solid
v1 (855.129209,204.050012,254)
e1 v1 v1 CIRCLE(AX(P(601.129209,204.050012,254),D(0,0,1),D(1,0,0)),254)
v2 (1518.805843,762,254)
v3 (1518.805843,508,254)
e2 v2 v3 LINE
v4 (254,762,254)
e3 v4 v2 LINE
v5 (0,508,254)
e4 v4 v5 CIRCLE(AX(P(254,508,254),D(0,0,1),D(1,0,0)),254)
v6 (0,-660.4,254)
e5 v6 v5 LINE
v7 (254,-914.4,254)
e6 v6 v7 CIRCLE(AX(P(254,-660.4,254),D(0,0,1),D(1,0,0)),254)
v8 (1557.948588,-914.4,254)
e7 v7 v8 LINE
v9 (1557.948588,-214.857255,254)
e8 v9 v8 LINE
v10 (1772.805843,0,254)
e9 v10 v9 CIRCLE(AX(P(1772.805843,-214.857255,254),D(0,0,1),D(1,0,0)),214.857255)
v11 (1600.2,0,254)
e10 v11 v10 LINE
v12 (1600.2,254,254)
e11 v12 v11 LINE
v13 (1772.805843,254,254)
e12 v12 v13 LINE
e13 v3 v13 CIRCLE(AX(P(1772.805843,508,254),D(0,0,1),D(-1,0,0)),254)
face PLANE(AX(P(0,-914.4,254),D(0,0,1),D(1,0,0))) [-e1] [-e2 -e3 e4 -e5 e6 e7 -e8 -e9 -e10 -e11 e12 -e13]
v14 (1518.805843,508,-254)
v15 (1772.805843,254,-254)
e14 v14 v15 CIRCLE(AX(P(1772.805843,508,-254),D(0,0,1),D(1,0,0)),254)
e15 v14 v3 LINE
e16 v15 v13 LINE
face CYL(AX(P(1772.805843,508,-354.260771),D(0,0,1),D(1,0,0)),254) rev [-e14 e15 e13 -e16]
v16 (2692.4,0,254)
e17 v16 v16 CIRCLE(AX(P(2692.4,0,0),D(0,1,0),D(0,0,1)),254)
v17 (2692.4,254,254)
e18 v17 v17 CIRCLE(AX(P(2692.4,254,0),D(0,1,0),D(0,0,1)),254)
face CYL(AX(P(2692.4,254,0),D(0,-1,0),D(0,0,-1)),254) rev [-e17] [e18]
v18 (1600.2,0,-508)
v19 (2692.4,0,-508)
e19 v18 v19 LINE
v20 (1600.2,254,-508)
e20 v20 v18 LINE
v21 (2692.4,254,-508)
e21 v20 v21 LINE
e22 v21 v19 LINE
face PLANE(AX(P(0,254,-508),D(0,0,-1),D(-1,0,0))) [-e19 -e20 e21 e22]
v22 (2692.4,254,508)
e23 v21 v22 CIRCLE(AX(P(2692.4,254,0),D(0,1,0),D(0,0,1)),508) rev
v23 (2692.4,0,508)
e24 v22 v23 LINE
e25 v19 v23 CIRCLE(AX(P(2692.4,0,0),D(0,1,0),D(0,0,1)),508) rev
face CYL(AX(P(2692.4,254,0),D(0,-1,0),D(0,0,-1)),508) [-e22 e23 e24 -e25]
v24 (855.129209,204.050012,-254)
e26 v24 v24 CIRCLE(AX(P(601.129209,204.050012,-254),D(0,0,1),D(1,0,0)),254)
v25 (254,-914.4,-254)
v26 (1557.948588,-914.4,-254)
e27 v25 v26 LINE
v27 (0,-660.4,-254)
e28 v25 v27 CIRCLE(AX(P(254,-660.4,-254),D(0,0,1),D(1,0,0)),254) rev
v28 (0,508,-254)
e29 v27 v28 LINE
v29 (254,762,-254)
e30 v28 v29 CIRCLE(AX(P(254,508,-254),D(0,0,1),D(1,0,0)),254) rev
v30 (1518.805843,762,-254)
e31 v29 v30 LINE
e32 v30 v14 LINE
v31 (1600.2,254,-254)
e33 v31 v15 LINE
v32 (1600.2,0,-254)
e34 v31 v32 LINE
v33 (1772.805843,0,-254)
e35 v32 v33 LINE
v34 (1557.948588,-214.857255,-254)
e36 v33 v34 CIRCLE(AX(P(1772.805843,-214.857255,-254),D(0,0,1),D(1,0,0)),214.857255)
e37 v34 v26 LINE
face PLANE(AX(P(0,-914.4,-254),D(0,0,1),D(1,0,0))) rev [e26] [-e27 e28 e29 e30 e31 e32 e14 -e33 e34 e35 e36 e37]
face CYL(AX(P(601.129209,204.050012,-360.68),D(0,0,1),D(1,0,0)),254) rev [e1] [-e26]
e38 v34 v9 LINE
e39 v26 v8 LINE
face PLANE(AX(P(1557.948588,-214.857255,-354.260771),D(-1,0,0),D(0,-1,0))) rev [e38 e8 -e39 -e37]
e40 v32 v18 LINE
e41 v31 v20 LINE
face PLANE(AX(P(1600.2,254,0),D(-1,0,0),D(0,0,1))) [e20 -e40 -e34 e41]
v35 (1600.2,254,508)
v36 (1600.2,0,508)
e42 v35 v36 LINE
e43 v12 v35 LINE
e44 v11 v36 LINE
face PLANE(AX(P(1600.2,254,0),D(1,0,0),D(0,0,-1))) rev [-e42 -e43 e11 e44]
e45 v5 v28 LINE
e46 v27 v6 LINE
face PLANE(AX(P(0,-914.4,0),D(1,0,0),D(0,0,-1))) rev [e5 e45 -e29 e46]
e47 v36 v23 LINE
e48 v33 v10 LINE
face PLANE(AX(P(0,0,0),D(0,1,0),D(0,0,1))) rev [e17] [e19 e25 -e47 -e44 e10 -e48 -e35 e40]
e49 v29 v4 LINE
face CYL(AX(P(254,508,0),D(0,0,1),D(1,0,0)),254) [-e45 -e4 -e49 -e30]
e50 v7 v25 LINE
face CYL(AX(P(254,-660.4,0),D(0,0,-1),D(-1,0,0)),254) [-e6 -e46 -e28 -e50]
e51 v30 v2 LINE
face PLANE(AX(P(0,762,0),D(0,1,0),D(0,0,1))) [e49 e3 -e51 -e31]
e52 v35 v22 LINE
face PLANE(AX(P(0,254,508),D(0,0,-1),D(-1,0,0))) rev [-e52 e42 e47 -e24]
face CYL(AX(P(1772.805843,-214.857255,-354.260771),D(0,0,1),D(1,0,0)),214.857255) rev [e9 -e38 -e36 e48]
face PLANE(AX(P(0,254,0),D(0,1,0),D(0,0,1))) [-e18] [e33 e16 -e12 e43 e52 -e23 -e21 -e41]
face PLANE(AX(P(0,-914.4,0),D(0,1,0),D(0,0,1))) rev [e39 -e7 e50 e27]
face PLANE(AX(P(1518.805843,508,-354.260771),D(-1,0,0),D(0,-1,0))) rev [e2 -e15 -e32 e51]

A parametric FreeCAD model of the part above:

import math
import FreeCAD as App
import Part
import Sketcher
Q = App.Units.Quantity


def edges_at(feature, points):
    """Names of the edges that pass closest to the given points."""
    edges = feature.Shape.Edges
    near = lambda p: min(range(len(edges)), key=lambda i: edges[i].distToShape(Part.Vertex(*p))[0])
    return sorted({f"Edge{near(p) + 1}" for p in points})


def add_polygon(sketch, points):
    """Adds a closed chain of lines whose ends are joined by coincident constraints."""
    first, n = sketch.GeometryCount, len(points)
    for a, b in zip(points, points[1:] + points[:1]):
        sketch.addGeometry(Part.LineSegment(App.Vector(*a, 0), App.Vector(*b, 0)), False)
    for i in range(n):
        sketch.addConstraint(Sketcher.Constraint("Coincident", first + i, 2, first + (i + 1) % n, 1))

doc = App.newDocument("Part")
body = doc.addObject("PartDesign::Body", "Body")

# Sketch on XZ plane
sketch1 = doc.addObject("Sketcher::SketchObject", "Sketch")
body.addObject(sketch1)
sketch1.AttachmentSupport = (doc.XZ_Plane, [""])
sketch1.MapMode = "FlatFace"
add_polygon(sketch1, [(0, -254), (0, 254), (1773, 254), (1773, -254)])  # lines 0-3
sketch1.addConstraint([
    Sketcher.Constraint("Vertical", 0),
    Sketcher.Constraint("Horizontal", 1),
    Sketcher.Constraint("Vertical", 2),
    Sketcher.Constraint("Horizontal", 3),
    Sketcher.Constraint("Symmetric", 0, 2, 3, 2, -1, 1),
    Sketcher.Constraint("DistanceY", 0, 1, 0, 2, Q("20 in")),
    Sketcher.Constraint("DistanceX", 1, 1, 1, 2, Q("1772.805843 mm")),
])
pad1 = doc.addObject("PartDesign::Pad", "Pad")
body.addObject(pad1)
pad1.Profile = sketch1
pad1.Type = "TwoLengths"
pad1.Length = Q("20 in")
pad1.Length2 = Q("36 in")
pad1.Reversed = True

# Sketch on XZ plane
sketch2 = doc.addObject("Sketcher::SketchObject", "Sketch001")
body.addObject(sketch2)
sketch2.AttachmentSupport = (doc.XZ_Plane, [""])
sketch2.MapMode = "FlatFace"
sketch2.addGeometry([
    Part.LineSegment(App.Vector(1773, 254, 0), App.Vector(1600, 254, 0)),  # 0
    Part.LineSegment(App.Vector(1600, 254, 0), App.Vector(1600, 508, 0)),  # 1
    Part.LineSegment(App.Vector(1600, 508, 0), App.Vector(2692, 508, 0)),  # 2
    Part.ArcOfCircle(Part.Circle(App.Vector(2692, 0, 0), App.Vector(0, 0, 1), 508), math.radians(-90), math.radians(90)),  # 3
    Part.LineSegment(App.Vector(2692, -508, 0), App.Vector(1600, -508, 0)),  # 4
    Part.LineSegment(App.Vector(1600, -508, 0), App.Vector(1600, -254, 0)),  # 5
    Part.LineSegment(App.Vector(1600, -254, 0), App.Vector(1773, -254, 0)),  # 6
    Part.LineSegment(App.Vector(1773, -254, 0), App.Vector(1773, 254, 0)),  # 7
    Part.Circle(App.Vector(2692, 0, 0), App.Vector(0, 0, 1), 254),  # 8
], False)
sketch2.addConstraint([
    Sketcher.Constraint("Coincident", 0, 2, 1, 1),
    Sketcher.Constraint("Coincident", 1, 2, 2, 1),
    Sketcher.Constraint("Tangent", 2, 2, 3, 2),
    Sketcher.Constraint("Tangent", 3, 1, 4, 1),
    Sketcher.Constraint("Coincident", 4, 2, 5, 1),
    Sketcher.Constraint("Coincident", 5, 2, 6, 1),
    Sketcher.Constraint("Coincident", 6, 2, 7, 1),
    Sketcher.Constraint("Coincident", 7, 2, 0, 1),
    Sketcher.Constraint("Horizontal", 0),
    Sketcher.Constraint("Vertical", 1),
    Sketcher.Constraint("Horizontal", 2),
    Sketcher.Constraint("Horizontal", 4),
    Sketcher.Constraint("Vertical", 5),
    Sketcher.Constraint("Horizontal", 6),
    Sketcher.Constraint("Vertical", 7),
    Sketcher.Constraint("Coincident", 8, 3, 3, 3),
    Sketcher.Constraint("Symmetric", 1, 2, 4, 2, -1),
    Sketcher.Constraint("Equal", 1, 5),
    Sketcher.Constraint("Diameter", 8, Q("20 in")),
    Sketcher.Constraint("Radius", 3, Q("20 in")),
    Sketcher.Constraint("DistanceX", 2, 1, 2, 2, Q("43 in")),
    Sketcher.Constraint("DistanceY", 1, 1, 1, 2, Q("10 in")),
    Sketcher.Constraint("DistanceX", -1, 1, 3, 3, Q("106 in")),
    Sketcher.Constraint("DistanceX", 0, 2, 0, 1, Q("172.605843 mm")),
])
pad2 = doc.addObject("PartDesign::Pad", "Pad001")
body.addObject(pad2)
pad2.Profile = sketch2
pad2.Length = Q("10 in")
pad2.Reversed = True

# Sketch on XZ plane
sketch3 = doc.addObject("Sketcher::SketchObject", "Sketch002")
body.addObject(sketch3)
sketch3.AttachmentSupport = (doc.XZ_Plane, [""])
sketch3.MapMode = "FlatFace"
add_polygon(sketch3, [(0, -254), (0, 254), (1773, 254), (1773, -254)])  # lines 0-3
sketch3.addConstraint([
    Sketcher.Constraint("Vertical", 0),
    Sketcher.Constraint("Horizontal", 1),
    Sketcher.Constraint("Vertical", 2),
    Sketcher.Constraint("Horizontal", 3),
    Sketcher.Constraint("Symmetric", 0, 2, 3, 2, -1, 1),
    Sketcher.Constraint("DistanceY", 0, 1, 0, 2, Q("20 in")),
    Sketcher.Constraint("DistanceX", 1, 1, 1, 2, Q("1772.805843 mm")),
])
pad3 = doc.addObject("PartDesign::Pad", "Pad002")
body.addObject(pad3)
pad3.Profile = sketch3
pad3.Length = Q("30 in")
pad3.Reversed = True

# Sketch on XY plane
sketch4 = doc.addObject("Sketcher::SketchObject", "Sketch003")
body.addObject(sketch4)
sketch4.AttachmentSupport = (doc.XY_Plane, [""])
sketch4.MapMode = "FlatFace"
sketch4.AttachmentOffset = App.Placement(App.Vector(0, 0, 10 * 25.4), App.Rotation())
sketch4.addGeometry([
    Part.LineSegment(App.Vector(1519, 762, 0), App.Vector(1519, 508, 0)),  # 0
    Part.ArcOfCircle(Part.Circle(App.Vector(1773, 508, 0), App.Vector(0, 0, 1), 254), math.radians(180), math.radians(270)),  # 1
    Part.LineSegment(App.Vector(1773, 254, 0), App.Vector(1773, 762, 0)),  # 2
    Part.LineSegment(App.Vector(1773, 762, 0), App.Vector(1519, 762, 0)),  # 3
    Part.LineSegment(App.Vector(1558, -215, 0), App.Vector(1558, -914, 0)),  # 4
    Part.LineSegment(App.Vector(1558, -914, 0), App.Vector(1773, -914, 0)),  # 5
    Part.LineSegment(App.Vector(1773, -914, 0), App.Vector(1773, 0, 0)),  # 6
    Part.ArcOfCircle(Part.Circle(App.Vector(1773, -215, 0), App.Vector(0, 0, 1), 215), math.radians(90), math.radians(180)),  # 7
], False)
sketch4.addConstraint([
    Sketcher.Constraint("Tangent", 0, 2, 1, 1),
    Sketcher.Constraint("Coincident", 1, 2, 2, 1),
    Sketcher.Constraint("Coincident", 2, 2, 3, 1),
    Sketcher.Constraint("Coincident", 3, 2, 0, 1),
    Sketcher.Constraint("Coincident", 4, 2, 5, 1),
    Sketcher.Constraint("Coincident", 5, 2, 6, 1),
    Sketcher.Constraint("Coincident", 6, 2, 7, 1),
    Sketcher.Constraint("Tangent", 7, 2, 4, 1),
    Sketcher.Constraint("Vertical", 0),
    Sketcher.Constraint("Vertical", 2),
    Sketcher.Constraint("Horizontal", 3),
    Sketcher.Constraint("Vertical", 4),
    Sketcher.Constraint("Horizontal", 5),
    Sketcher.Constraint("Vertical", 6),
    Sketcher.Constraint("PointOnObject", 6, 2, -1),
    Sketcher.Constraint("Vertical", 1, 3, 7, 3),
    Sketcher.Constraint("Vertical", 7, 3, 1, 2),
    Sketcher.Constraint("Vertical", 2, 2, 5, 2),
    Sketcher.Constraint("Equal", 3, 0),
    Sketcher.Constraint("Radius", 1, Q("10 in")),
    Sketcher.Constraint("DistanceY", 6, 1, 6, 2, Q("36 in")),
    Sketcher.Constraint("DistanceY", -1, 1, 1, 3, Q("20 in")),
    Sketcher.Constraint("Radius", 7, Q("214.857255 mm")),
    Sketcher.Constraint("DistanceX", -1, 1, 1, 3, Q("1772.805843 mm")),
])
pocket1 = doc.addObject("PartDesign::Pocket", "Pocket")
body.addObject(pocket1)
pocket1.Profile = sketch4
pocket1.Length = 608.260771
doc.recompute()

fillet = doc.addObject("PartDesign::Fillet", "Fillet")
body.addObject(fillet)
fillet.Base = (pocket1, edges_at(pocket1, [(0, 762, 0)]))
fillet.Radius = Q("10 in")
doc.recompute()

fillet2 = doc.addObject("PartDesign::Fillet", "Fillet001")
body.addObject(fillet2)
fillet2.Base = (fillet, edges_at(fillet, [(0, -914.4, 0)]))
fillet2.Radius = Q("10 in")

# Sketch on XY plane
sketch5 = doc.addObject("Sketcher::SketchObject", "Sketch004")
body.addObject(sketch5)
sketch5.AttachmentSupport = (doc.XY_Plane, [""])
sketch5.MapMode = "FlatFace"
sketch5.AttachmentOffset = App.Placement(App.Vector(0, 0, 10 * 25.4), App.Rotation())
sketch5.addGeometry(Part.Circle(App.Vector(601, 204, 0), App.Vector(0, 0, 1), 254), False)
sketch5.addConstraint([
    Sketcher.Constraint("Diameter", 0, Q("20 in")),
    Sketcher.Constraint("DistanceX", -1, 1, 0, 3, Q("601.129209 mm")),
    Sketcher.Constraint("DistanceY", -1, 1, 0, 3, Q("204.050012 mm")),
])
pocket2 = doc.addObject("PartDesign::Pocket", "Pocket001")
body.addObject(pocket2)
pocket2.Profile = sketch5
pocket2.Length = Q("24.2 in")

doc.recompute()
